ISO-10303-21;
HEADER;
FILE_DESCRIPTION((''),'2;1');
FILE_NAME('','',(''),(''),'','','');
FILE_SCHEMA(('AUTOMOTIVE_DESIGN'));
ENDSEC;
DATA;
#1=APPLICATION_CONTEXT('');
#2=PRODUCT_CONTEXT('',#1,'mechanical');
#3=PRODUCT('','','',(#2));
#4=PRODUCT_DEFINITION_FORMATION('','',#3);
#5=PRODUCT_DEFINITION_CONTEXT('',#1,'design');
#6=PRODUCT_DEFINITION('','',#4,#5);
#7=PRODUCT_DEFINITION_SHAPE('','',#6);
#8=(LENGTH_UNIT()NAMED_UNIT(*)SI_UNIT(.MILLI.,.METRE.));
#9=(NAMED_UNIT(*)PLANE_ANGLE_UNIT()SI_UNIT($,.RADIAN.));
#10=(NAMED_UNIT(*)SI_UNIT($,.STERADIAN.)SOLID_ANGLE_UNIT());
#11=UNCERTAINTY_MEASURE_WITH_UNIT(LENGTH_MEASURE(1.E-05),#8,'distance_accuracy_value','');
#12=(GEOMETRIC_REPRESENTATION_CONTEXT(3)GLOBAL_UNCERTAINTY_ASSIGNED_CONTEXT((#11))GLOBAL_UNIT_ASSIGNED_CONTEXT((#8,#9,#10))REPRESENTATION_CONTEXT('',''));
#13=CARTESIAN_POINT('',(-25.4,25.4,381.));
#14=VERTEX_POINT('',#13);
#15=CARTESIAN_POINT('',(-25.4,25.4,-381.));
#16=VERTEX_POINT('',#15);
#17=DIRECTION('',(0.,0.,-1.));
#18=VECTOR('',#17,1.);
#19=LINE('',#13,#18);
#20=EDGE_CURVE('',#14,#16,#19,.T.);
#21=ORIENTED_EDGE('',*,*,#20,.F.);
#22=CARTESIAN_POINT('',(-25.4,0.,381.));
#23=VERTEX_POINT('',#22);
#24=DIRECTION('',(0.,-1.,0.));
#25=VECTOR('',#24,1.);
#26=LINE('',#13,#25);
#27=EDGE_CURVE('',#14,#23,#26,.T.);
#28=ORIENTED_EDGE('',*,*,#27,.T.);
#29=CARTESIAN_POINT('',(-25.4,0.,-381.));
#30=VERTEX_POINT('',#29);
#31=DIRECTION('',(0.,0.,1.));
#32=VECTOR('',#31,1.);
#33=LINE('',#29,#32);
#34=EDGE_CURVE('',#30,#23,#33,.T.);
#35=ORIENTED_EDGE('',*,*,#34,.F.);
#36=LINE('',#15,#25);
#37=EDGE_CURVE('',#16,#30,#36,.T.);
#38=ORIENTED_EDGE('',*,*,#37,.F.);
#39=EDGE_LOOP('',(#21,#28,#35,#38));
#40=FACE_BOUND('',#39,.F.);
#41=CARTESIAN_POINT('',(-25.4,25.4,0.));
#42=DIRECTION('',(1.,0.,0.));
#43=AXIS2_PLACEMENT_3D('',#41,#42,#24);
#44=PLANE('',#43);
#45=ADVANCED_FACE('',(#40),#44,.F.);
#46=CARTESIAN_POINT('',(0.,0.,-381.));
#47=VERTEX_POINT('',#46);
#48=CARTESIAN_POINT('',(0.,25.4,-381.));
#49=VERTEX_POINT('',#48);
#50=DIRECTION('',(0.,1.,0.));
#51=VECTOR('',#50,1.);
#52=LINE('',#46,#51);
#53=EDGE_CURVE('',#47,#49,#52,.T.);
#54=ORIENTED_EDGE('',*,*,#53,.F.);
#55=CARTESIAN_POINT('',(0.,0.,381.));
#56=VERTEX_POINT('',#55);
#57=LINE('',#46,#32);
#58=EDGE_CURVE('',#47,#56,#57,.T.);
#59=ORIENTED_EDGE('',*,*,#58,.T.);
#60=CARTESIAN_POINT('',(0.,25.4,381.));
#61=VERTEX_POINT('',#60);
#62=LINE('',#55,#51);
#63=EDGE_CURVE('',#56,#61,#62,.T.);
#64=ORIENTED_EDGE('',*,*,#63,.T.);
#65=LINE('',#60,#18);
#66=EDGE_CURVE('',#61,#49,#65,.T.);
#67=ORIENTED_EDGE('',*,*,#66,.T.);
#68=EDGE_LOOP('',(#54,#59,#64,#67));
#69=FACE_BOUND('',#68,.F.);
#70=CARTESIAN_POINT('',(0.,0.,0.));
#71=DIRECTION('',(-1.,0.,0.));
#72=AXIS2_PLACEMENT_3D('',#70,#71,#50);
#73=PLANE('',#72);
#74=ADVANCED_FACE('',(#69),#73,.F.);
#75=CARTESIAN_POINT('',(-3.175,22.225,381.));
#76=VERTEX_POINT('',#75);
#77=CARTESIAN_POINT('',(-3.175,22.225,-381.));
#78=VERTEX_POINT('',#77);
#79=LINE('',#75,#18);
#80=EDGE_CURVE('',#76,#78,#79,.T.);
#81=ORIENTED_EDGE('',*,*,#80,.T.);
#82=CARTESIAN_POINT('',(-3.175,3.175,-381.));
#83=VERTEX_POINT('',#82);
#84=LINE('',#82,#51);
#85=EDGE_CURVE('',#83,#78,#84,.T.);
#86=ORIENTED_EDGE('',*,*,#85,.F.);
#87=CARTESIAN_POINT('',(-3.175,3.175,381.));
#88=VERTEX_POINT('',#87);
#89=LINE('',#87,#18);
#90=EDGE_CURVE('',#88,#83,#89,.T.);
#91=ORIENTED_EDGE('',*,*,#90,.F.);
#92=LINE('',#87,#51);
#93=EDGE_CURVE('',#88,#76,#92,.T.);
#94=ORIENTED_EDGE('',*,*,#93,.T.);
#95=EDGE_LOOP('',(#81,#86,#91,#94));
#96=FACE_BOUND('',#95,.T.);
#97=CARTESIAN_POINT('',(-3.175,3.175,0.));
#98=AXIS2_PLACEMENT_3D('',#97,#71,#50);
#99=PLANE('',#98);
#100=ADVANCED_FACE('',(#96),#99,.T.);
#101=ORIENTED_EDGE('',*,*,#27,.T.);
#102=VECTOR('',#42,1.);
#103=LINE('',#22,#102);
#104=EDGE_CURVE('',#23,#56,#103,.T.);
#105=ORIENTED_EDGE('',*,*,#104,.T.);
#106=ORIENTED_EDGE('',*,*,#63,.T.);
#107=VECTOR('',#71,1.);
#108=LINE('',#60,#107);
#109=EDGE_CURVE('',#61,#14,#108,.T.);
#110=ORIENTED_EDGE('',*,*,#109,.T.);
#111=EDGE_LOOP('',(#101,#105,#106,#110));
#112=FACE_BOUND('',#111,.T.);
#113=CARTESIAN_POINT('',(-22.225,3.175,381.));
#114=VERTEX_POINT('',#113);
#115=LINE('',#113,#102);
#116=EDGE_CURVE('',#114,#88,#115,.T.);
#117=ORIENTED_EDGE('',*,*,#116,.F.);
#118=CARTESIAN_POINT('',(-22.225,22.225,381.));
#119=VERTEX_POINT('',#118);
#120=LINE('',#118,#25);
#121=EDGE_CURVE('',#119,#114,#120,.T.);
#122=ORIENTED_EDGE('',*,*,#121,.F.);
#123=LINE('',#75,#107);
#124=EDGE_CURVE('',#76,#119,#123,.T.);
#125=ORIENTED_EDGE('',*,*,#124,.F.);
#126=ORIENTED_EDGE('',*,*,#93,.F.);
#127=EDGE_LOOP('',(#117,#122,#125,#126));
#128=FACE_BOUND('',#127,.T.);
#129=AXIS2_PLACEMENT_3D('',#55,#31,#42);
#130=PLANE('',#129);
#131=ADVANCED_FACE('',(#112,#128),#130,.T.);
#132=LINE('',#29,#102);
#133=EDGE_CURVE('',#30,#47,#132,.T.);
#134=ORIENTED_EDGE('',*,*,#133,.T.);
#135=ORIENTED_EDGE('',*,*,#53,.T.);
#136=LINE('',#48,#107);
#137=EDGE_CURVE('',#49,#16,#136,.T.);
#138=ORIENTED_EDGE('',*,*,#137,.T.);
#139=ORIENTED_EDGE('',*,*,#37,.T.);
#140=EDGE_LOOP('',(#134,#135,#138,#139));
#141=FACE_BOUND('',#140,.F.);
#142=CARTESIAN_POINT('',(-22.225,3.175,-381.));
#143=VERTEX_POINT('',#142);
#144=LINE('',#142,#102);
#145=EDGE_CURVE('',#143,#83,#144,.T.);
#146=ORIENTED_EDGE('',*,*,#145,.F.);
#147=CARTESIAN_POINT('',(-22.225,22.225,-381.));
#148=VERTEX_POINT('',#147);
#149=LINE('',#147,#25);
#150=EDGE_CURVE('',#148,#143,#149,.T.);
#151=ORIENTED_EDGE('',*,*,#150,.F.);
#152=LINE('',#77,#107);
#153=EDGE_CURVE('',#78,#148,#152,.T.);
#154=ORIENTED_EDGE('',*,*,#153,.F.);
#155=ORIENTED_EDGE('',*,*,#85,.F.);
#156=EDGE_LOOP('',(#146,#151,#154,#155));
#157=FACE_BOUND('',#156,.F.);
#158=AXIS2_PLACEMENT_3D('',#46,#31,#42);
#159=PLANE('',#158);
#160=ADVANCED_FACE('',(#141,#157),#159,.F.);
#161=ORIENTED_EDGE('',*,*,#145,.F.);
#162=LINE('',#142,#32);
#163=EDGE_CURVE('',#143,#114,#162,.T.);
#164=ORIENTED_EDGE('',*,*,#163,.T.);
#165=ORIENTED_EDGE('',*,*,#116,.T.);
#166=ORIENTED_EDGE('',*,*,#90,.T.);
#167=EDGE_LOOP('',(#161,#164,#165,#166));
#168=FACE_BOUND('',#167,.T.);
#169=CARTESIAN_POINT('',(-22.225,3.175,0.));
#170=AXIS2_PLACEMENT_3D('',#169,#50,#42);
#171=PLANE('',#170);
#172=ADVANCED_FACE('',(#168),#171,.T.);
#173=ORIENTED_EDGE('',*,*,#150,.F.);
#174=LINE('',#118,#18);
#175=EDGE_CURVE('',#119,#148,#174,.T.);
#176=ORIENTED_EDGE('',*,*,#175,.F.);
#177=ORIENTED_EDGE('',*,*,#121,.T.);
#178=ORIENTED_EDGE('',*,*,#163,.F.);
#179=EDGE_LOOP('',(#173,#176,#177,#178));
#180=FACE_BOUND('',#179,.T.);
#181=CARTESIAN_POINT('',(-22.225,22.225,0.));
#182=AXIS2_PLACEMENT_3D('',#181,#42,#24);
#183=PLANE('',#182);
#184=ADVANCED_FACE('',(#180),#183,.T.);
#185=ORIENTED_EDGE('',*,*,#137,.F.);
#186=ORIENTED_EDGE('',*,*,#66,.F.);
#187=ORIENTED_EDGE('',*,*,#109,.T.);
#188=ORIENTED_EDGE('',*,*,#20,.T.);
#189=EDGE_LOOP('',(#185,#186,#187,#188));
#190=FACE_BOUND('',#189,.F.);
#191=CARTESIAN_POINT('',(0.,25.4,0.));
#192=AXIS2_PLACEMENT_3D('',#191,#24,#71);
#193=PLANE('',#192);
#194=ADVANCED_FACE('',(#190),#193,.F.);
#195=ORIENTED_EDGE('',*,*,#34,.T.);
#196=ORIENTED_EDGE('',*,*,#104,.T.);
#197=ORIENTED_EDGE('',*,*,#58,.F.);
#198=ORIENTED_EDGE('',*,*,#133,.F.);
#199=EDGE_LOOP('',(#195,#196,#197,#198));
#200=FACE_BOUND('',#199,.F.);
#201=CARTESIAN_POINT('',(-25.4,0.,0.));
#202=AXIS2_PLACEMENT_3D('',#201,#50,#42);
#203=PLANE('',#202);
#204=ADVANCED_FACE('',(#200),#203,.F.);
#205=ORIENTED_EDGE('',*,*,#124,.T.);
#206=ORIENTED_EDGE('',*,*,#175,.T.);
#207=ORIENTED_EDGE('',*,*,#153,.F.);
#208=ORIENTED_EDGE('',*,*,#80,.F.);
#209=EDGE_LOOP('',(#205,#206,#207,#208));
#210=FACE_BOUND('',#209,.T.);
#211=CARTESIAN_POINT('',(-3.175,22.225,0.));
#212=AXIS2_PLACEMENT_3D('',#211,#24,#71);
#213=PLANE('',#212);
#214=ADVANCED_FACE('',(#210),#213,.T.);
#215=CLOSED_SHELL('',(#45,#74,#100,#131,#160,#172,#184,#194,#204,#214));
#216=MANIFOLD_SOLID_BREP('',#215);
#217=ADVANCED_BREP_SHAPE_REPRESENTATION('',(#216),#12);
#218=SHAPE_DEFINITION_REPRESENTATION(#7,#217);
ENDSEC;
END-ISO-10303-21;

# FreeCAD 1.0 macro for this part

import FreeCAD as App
import Part
import Sketcher

V = App.Vector
Q = App.Units.Quantity

doc = App.newDocument("Part")
body = doc.addObject("PartDesign::Body", "Body")

sketch1 = body.newObject("Sketcher::SketchObject", "Sketch")
sketch1.AttachmentSupport = (doc.getObject("XY_Plane"), [""])
sketch1.MapMode = "FlatFace"
sketch1.addGeometry([
    Part.LineSegment(V(-25, 25, 0), V(-25, 0, 0)),
    Part.LineSegment(V(-25, 0, 0), V(0, 0, 0)),
    Part.LineSegment(V(0, 0, 0), V(0, 25, 0)),
    Part.LineSegment(V(0, 25, 0), V(-25, 25, 0)),
    Part.LineSegment(V(-3, 3, 0), V(-22, 3, 0)),
    Part.LineSegment(V(-22, 3, 0), V(-22, 22, 0)),
    Part.LineSegment(V(-22, 22, 0), V(-3, 22, 0)),
    Part.LineSegment(V(-3, 22, 0), V(-3, 3, 0)),
], False)
sketch1.addConstraint([
    Sketcher.Constraint("Coincident", 0, 2, 1, 1),
    Sketcher.Constraint("Coincident", 1, 2, 2, 1),
    Sketcher.Constraint("Coincident", 2, 2, 3, 1),
    Sketcher.Constraint("Coincident", 3, 2, 0, 1),
    Sketcher.Constraint("Coincident", 4, 2, 5, 1),
    Sketcher.Constraint("Coincident", 5, 2, 6, 1),
    Sketcher.Constraint("Coincident", 6, 2, 7, 1),
    Sketcher.Constraint("Coincident", 7, 2, 4, 1),
    Sketcher.Constraint("Vertical", 0),
    Sketcher.Constraint("Horizontal", 1),
    Sketcher.Constraint("Vertical", 2),
    Sketcher.Constraint("Horizontal", 3),
    Sketcher.Constraint("Horizontal", 4),
    Sketcher.Constraint("Vertical", 5),
    Sketcher.Constraint("Horizontal", 6),
    Sketcher.Constraint("Vertical", 7),
    Sketcher.Constraint("Coincident", 1, 2, -1, 1),
    Sketcher.Constraint("Equal", 3, 0),
    Sketcher.Constraint("Equal", 6, 5),
    Sketcher.Constraint("DistanceX", 1, 1, 1, 2, Q("1 in")),
    Sketcher.Constraint("DistanceX", 4, 2, 4, 1, Q("0.75 in")),
    Sketcher.Constraint("DistanceX", 4, 2, -1, 1, Q("0.875 in")),
    Sketcher.Constraint("DistanceY", -1, 1, 4, 2, Q("0.125 in")),
])
pad1 = body.newObject("PartDesign::Pad", "Pad")
pad1.Profile = sketch1
pad1.Length = Q("30 in")
pad1.Midplane = True

doc.recompute()
